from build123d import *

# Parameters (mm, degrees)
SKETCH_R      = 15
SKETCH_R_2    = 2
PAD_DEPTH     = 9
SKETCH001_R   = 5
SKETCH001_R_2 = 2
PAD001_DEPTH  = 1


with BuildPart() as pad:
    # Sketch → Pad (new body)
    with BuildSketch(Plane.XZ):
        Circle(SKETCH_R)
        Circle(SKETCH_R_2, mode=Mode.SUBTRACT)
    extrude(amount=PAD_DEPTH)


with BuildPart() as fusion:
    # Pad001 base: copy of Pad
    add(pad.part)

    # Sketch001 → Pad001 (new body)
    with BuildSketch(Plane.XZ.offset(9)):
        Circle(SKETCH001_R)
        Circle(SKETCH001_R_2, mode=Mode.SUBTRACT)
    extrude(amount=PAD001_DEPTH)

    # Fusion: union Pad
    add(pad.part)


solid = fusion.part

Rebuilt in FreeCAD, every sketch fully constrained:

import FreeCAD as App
import Part
import Sketcher
from FreeCAD import Vector

doc = App.newDocument("Part")
body = doc.addObject("PartDesign::Body", "Body")

# Sketch on XZ plane
sketch1 = doc.addObject("Sketcher::SketchObject", "Sketch")
body.addObject(sketch1)
sketch1.AttachmentSupport = (doc.XZ_Plane, [""])
sketch1.MapMode = "FlatFace"
sketch1.addGeometry(Part.Circle(Vector(0, 0, 0), Vector(0, 0, 1), 15), False)
sketch1.addGeometry(Part.Circle(Vector(0, 0, 0), Vector(0, 0, 1), 2), False)
sketch1.addConstraint(Sketcher.Constraint("Coincident", 0, 3, -1, 1))
sketch1.addConstraint(Sketcher.Constraint("Coincident", 1, 3, -1, 1))
sketch1.addConstraint(Sketcher.Constraint("Diameter", 0, 30.0))
sketch1.addConstraint(Sketcher.Constraint("Diameter", 1, 4.0))
pad1 = doc.addObject("PartDesign::Pad", "Pad")
body.addObject(pad1)
pad1.Profile = sketch1
pad1.Length = 9
body2 = doc.addObject("PartDesign::Body", "Body001")
doc.recompute()

body2.BaseFeature = body
doc.recompute()

# Sketch on XZ plane
sketch2 = doc.addObject("Sketcher::SketchObject", "Sketch001")
body2.addObject(sketch2)
sketch2.AttachmentSupport = (doc.getObject("XZ_Plane001"), [""])
sketch2.MapMode = "FlatFace"
sketch2.AttachmentOffset = App.Placement(Vector(0, 0, 9), App.Rotation())
sketch2.addGeometry(Part.Circle(Vector(0, 0, 0), Vector(0, 0, 1), 5), False)
sketch2.addGeometry(Part.Circle(Vector(0, 0, 0), Vector(0, 0, 1), 2), False)
sketch2.addConstraint(Sketcher.Constraint("Coincident", 0, 3, -1, 1))
sketch2.addConstraint(Sketcher.Constraint("Coincident", 1, 3, -1, 1))
sketch2.addConstraint(Sketcher.Constraint("Diameter", 0, 10.0))
sketch2.addConstraint(Sketcher.Constraint("Diameter", 1, 4.0))
pad2 = doc.addObject("PartDesign::Pad", "Pad001")
body2.addObject(pad2)
pad2.Profile = sketch2
pad2.Length = 1
doc.recompute()

boolean = doc.addObject("PartDesign::Boolean", "Boolean")
body2.addObject(boolean)
boolean.Type = "Fuse"
boolean.addObjects([body])

doc.recompute()
